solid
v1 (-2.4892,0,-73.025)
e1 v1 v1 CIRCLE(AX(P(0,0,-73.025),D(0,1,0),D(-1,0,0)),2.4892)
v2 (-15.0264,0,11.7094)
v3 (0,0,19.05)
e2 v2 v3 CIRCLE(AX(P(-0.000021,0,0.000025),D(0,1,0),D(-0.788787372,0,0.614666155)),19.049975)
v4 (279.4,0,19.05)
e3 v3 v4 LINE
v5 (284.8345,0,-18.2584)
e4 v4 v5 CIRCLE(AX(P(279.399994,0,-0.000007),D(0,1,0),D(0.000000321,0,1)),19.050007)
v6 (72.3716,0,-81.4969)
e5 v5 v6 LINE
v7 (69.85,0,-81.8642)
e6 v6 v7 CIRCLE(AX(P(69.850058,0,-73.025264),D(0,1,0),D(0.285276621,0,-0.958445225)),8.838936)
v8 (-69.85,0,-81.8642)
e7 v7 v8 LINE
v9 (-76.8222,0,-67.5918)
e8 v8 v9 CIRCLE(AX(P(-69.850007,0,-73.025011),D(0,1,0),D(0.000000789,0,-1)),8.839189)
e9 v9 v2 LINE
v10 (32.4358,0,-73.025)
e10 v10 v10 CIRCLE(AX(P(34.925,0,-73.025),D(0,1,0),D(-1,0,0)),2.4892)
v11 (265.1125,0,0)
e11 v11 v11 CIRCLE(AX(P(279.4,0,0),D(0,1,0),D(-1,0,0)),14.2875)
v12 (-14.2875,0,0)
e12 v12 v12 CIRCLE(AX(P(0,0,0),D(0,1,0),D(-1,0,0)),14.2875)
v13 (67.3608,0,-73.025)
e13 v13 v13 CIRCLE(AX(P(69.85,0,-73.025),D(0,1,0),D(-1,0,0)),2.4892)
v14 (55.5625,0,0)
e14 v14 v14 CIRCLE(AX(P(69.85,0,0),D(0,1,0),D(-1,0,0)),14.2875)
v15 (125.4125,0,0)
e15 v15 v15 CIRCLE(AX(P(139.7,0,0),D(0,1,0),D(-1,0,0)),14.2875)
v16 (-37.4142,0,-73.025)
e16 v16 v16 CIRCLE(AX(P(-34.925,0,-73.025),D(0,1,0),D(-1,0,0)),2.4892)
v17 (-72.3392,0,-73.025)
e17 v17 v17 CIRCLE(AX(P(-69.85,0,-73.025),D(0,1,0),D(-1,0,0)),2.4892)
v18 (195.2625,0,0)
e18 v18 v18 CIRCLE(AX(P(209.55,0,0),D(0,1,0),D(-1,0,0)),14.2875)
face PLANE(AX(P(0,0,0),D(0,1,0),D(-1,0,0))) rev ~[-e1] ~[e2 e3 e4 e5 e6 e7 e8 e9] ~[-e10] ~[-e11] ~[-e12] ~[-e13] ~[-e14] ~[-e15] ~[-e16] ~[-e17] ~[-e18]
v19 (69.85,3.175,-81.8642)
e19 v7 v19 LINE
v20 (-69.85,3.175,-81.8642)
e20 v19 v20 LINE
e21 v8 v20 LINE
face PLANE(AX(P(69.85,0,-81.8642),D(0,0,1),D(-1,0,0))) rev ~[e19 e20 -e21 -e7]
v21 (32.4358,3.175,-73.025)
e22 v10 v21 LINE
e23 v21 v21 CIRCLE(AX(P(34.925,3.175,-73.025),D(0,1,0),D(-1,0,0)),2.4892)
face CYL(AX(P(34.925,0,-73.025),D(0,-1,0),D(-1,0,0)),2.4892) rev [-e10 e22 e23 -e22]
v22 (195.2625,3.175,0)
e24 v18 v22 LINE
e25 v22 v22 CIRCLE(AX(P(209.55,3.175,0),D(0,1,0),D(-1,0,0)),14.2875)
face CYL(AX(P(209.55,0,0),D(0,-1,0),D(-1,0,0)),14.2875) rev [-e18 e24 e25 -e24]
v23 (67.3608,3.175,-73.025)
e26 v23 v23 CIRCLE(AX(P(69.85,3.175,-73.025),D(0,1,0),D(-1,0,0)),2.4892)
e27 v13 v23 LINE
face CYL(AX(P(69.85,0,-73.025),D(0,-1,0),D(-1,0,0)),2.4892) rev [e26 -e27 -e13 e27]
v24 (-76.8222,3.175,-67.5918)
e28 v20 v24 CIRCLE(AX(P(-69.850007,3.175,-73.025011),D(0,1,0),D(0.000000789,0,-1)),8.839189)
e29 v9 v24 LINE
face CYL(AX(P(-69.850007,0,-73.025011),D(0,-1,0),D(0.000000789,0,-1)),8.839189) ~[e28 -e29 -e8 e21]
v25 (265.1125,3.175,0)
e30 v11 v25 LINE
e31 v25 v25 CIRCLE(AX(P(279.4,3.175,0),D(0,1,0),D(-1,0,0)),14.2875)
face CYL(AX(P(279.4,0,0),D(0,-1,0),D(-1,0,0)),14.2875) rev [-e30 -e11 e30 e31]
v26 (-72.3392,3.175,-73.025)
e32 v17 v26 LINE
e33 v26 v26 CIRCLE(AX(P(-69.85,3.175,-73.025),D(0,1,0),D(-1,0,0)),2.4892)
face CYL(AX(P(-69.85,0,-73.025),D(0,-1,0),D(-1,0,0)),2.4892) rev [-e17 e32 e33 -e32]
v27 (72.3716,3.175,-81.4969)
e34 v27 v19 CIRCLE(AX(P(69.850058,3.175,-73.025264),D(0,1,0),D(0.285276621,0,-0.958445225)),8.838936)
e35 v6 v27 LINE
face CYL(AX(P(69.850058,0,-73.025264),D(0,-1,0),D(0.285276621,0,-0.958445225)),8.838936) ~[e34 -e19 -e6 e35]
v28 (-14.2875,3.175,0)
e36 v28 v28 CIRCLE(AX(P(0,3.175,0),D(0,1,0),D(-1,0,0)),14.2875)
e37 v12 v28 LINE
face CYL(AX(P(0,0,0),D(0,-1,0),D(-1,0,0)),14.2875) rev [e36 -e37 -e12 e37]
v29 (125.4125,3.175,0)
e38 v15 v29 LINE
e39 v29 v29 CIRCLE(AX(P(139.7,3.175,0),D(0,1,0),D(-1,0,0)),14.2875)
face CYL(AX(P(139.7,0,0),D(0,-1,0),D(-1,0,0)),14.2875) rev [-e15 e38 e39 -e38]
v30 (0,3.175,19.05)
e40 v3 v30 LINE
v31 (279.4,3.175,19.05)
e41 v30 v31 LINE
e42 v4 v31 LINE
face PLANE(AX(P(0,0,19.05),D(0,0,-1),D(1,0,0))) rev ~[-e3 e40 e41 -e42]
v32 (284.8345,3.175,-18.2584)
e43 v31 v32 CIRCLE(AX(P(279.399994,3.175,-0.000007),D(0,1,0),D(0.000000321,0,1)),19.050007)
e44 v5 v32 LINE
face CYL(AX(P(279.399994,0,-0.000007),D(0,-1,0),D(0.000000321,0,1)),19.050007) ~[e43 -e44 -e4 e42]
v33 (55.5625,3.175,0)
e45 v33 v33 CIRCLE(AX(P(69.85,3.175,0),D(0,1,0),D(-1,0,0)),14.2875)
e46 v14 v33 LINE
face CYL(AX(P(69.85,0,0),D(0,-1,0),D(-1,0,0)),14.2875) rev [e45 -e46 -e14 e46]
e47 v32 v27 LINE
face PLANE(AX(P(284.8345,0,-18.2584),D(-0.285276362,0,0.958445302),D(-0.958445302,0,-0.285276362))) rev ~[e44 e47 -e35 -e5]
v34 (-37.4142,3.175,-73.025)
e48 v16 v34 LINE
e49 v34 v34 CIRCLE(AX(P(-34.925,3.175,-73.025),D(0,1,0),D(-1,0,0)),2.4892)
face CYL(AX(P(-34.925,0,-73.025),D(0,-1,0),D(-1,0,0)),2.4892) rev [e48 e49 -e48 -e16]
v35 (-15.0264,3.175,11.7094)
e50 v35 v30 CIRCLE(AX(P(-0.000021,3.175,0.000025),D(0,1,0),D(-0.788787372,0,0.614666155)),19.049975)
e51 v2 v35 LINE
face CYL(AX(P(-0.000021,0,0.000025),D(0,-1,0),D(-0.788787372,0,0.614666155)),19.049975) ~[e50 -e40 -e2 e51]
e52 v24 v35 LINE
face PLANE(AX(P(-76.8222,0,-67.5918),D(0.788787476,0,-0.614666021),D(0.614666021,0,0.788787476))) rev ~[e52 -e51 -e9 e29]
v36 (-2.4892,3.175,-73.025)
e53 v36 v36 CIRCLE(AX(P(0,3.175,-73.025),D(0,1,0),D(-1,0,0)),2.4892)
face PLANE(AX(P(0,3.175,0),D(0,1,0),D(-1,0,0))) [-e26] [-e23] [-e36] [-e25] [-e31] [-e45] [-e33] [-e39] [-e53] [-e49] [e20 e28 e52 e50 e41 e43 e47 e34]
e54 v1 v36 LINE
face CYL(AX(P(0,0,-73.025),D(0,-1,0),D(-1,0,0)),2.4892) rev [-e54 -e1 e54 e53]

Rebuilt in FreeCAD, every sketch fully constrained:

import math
import FreeCAD as App
import Part
import Sketcher

V = App.Vector
Q = App.Units.Quantity

doc = App.newDocument("Part")
body = doc.addObject("PartDesign::Body", "Body")

# Sketch on XZ plane
sketch1 = body.newObject("Sketcher::SketchObject", "Sketch")
sketch1.AttachmentSupport = (doc.getObject("XZ_Plane"), [""])
sketch1.MapMode = "FlatFace"
sketch1.addGeometry([
    Part.LineSegment(V(-76.8, -67.6, 0), V(-15, 11.7, 0)),  # 0
    Part.ArcOfCircle(Part.Circle(V(0, 0, 0), V(0, 0, 1), 19.1), math.radians(90), math.radians(142)),  # 1
    Part.LineSegment(V(0, 19.1, 0), V(279.4, 19.1, 0)),  # 2
    Part.ArcOfCircle(Part.Circle(V(279.4, 0, 0), V(0, 0, 1), 19.1), math.radians(-73), math.radians(90)),  # 3
    Part.LineSegment(V(284.8, -18.3, 0), V(72.4, -81.5, 0)),  # 4
    Part.ArcOfCircle(Part.Circle(V(69.8, -73, 0), V(0, 0, 1), 8.8), math.radians(-90), math.radians(-73.42)),  # 5
    Part.LineSegment(V(69.8, -81.9, 0), V(-69.8, -81.9, 0)),  # 6
    Part.ArcOfCircle(Part.Circle(V(-69.8, -73, 0), V(0, 0, 1), 8.8), math.radians(142), math.radians(270)),  # 7
    Part.Circle(V(69.8, -73, 0), V(0, 0, 1), 2.5),  # 8
    Part.Circle(V(34.9, -73, 0), V(0, 0, 1), 2.5),  # 9
    Part.Circle(V(0, -73, 0), V(0, 0, 1), 2.5),  # 10
    Part.Circle(V(-34.9, -73, 0), V(0, 0, 1), 2.5),  # 11
    Part.Circle(V(-69.8, -73, 0), V(0, 0, 1), 2.5),  # 12
    Part.Circle(V(279.4, 0, 0), V(0, 0, 1), 14.3),  # 13
    Part.Circle(V(209.6, 0, 0), V(0, 0, 1), 14.3),  # 14
    Part.Circle(V(139.7, 0, 0), V(0, 0, 1), 14.3),  # 15
    Part.Circle(V(69.8, 0, 0), V(0, 0, 1), 14.3),  # 16
    Part.Circle(V(0, 0, 0), V(0, 0, 1), 14.3),  # 17
], False)
sketch1.addConstraint([
    Sketcher.Constraint("Tangent", 0, 2, 1, 2),
    Sketcher.Constraint("Tangent", 1, 1, 2, 1),
    Sketcher.Constraint("Tangent", 2, 2, 3, 2),
    Sketcher.Constraint("Tangent", 3, 1, 4, 1),
    Sketcher.Constraint("Tangent", 4, 2, 5, 2),
    Sketcher.Constraint("Tangent", 5, 1, 6, 1),
    Sketcher.Constraint("Tangent", 6, 2, 7, 2),
    Sketcher.Constraint("Tangent", 7, 1, 0, 1),
    Sketcher.Constraint("Horizontal", 2),
    Sketcher.Constraint("Horizontal", 6),
    Sketcher.Constraint("Coincident", 1, 3, -1, 1),
    Sketcher.Constraint("Coincident", 17, 3, -1, 1),
    Sketcher.Constraint("Coincident", 8, 3, 5, 3),
    Sketcher.Constraint("Coincident", 12, 3, 7, 3),
    Sketcher.Constraint("Coincident", 13, 3, 3, 3),
    Sketcher.Constraint("Equal", 1, 3),
    Sketcher.Constraint("Equal", 5, 7),
    Sketcher.Constraint("Equal", 8, 9),
    Sketcher.Constraint("Equal", 9, 10),
    Sketcher.Constraint("Equal", 10, 11),
    Sketcher.Constraint("Equal", 11, 12),
    Sketcher.Constraint("Equal", 13, 14),
    Sketcher.Constraint("Equal", 14, 15),
    Sketcher.Constraint("Equal", 15, 16),
    Sketcher.Constraint("Equal", 16, 17),
    Sketcher.Constraint("Symmetric", 9, 3, 11, 3, -2),
    Sketcher.Constraint("PointOnObject", 10, 3, -2),
    Sketcher.Constraint("PointOnObject", 14, 3, -1),
    Sketcher.Constraint("PointOnObject", 15, 3, -1),
    Sketcher.Constraint("PointOnObject", 16, 3, -1),
    Sketcher.Constraint("Horizontal", 8, 3, 9, 3),
    Sketcher.Constraint("Horizontal", 9, 3, 10, 3),
    Sketcher.Constraint("Vertical", 8, 3, 16, 3),
    Sketcher.Constraint("DistanceX", 2, 1, 2, 2, Q("11 in")),
    Sketcher.Constraint("Diameter", 8, Q("0.196 in")),
    Sketcher.Constraint("Diameter", 13, Q("1.125 in")),
    Sketcher.Constraint("DistanceX", -1, 1, 5, 3, Q("2.75 in")),
    Sketcher.Constraint("DistanceX", 7, 3, -1, 1, Q("2.75 in")),
    Sketcher.Constraint("Radius", 1, Q("0.75 in")),
    Sketcher.Constraint("DistanceX", 11, 3, 9, 3, Q("2.75 in")),
    Sketcher.Constraint("DistanceX", 14, 3, 3, 3, Q("2.75 in")),
    Sketcher.Constraint("DistanceX", 15, 3, 14, 3, Q("2.75 in")),
    Sketcher.Constraint("DistanceY", 5, 3, -1, 1, Q("2.875 in")),
    Sketcher.Constraint("Radius", 5, Q("0.348 in")),
])
pad1 = body.newObject("PartDesign::Pad", "Pad")
pad1.Profile = sketch1
pad1.Length = Q("0.125 in")
pad1.Reversed = True

doc.recompute()
